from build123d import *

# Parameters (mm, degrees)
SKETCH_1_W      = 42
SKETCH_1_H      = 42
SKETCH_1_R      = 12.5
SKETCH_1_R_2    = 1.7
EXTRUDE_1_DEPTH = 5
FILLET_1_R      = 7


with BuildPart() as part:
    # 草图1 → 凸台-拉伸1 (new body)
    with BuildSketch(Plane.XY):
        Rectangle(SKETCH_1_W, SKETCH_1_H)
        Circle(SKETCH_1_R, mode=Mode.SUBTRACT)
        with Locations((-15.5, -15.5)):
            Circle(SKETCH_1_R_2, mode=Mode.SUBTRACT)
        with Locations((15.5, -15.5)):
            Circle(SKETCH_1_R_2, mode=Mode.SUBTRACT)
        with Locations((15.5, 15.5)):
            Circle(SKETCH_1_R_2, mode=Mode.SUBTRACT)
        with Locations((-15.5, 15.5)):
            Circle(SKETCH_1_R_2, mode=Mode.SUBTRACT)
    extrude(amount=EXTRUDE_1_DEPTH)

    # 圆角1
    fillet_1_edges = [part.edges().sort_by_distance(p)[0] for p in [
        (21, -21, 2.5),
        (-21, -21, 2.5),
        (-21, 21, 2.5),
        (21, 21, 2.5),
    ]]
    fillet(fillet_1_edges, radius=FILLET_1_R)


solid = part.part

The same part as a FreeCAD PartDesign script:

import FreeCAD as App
import Part
import Sketcher


def edges_at(feature, points):
    """Names of the edges that pass closest to the given points."""
    edges = feature.Shape.Edges
    near = lambda p: min(range(len(edges)), key=lambda i: edges[i].distToShape(Part.Vertex(*p))[0])
    return sorted({f"Edge{near(p) + 1}" for p in points})

doc = App.newDocument("Part")
params = doc.addObject("Spreadsheet::Sheet", "Params")
for row, (alias, value) in enumerate([
    ("sketch1_diameter", "25 mm"),
    ("sketch1_diameter2", "3.4 mm"),
    ("sketch1_width", "42 mm"),
    ("pad1_length", "5 mm"),
    ("fillet_radius", "7 mm"),
], start=1):
    params.set(f"A{row}", alias)
    params.set(f"B{row}", "=" + value)
    params.setAlias(f"B{row}", alias)

body = doc.addObject("PartDesign::Body", "Body")

sketch1 = body.newObject("Sketcher::SketchObject", "Sketch")
sketch1.AttachmentSupport = (doc.getObject("XY_Plane"), [""])
sketch1.MapMode = "FlatFace"
sketch1.addGeometry(Part.LineSegment(App.Vector(-21, 21, 0), App.Vector(-21, -21, 0)), False)
sketch1.addGeometry(Part.LineSegment(App.Vector(-21, -21, 0), App.Vector(21, -21, 0)), False)
sketch1.addGeometry(Part.LineSegment(App.Vector(21, -21, 0), App.Vector(21, 21, 0)), False)
sketch1.addGeometry(Part.LineSegment(App.Vector(21, 21, 0), App.Vector(-21, 21, 0)), False)
sketch1.addGeometry(Part.Circle(App.Vector(-15.5, -15.5, 0), App.Vector(0, 0, 1), 1.7), False)
sketch1.addGeometry(Part.Circle(App.Vector(15.5, -15.5, 0), App.Vector(0, 0, 1), 1.7), False)
sketch1.addGeometry(Part.Circle(App.Vector(-15.5, 15.5, 0), App.Vector(0, 0, 1), 1.7), False)
sketch1.addGeometry(Part.Circle(App.Vector(0, 0, 0), App.Vector(0, 0, 1), 12.5), False)
sketch1.addGeometry(Part.Circle(App.Vector(15.5, 15.5, 0), App.Vector(0, 0, 1), 1.7), False)
sketch1.addConstraint(Sketcher.Constraint("Coincident", 0, 2, 1, 1))
sketch1.addConstraint(Sketcher.Constraint("Coincident", 1, 2, 2, 1))
sketch1.addConstraint(Sketcher.Constraint("Coincident", 2, 2, 3, 1))
sketch1.addConstraint(Sketcher.Constraint("Coincident", 3, 2, 0, 1))
sketch1.addConstraint(Sketcher.Constraint("Vertical", 0))
sketch1.addConstraint(Sketcher.Constraint("Horizontal", 1))
sketch1.addConstraint(Sketcher.Constraint("Vertical", 2))
sketch1.addConstraint(Sketcher.Constraint("Horizontal", 3))
sketch1.addConstraint(Sketcher.Constraint("Coincident", 7, 3, -1, 1))
sketch1.addConstraint(Sketcher.Constraint("Equal", 4, 5))
sketch1.addConstraint(Sketcher.Constraint("Equal", 5, 6))
sketch1.addConstraint(Sketcher.Constraint("Equal", 6, 8))
sketch1.addConstraint(Sketcher.Constraint("Symmetric", 5, 3, 6, 3, -1, 1))
sketch1.addConstraint(Sketcher.Constraint("Symmetric", 4, 3, 8, 3, -1, 1))
sketch1.addConstraint(Sketcher.Constraint("Symmetric", 0, 2, 2, 2, -1, 1))
sketch1.addConstraint(Sketcher.Constraint("Symmetric", 4, 3, 5, 3, -2))
sketch1.addConstraint(Sketcher.Constraint("Equal", 3, 0))
sketch1.addConstraint(Sketcher.Constraint("Diameter", 7, 25.0))
sketch1.addConstraint(Sketcher.Constraint("Diameter", 4, 3.4))
sketch1.addConstraint(Sketcher.Constraint("DistanceX", 1, 1, 1, 2, 42.0))
sketch1.addConstraint(Sketcher.Constraint("DistanceX", 4, 3, 5, 3, 31.0))
sketch1.addConstraint(Sketcher.Constraint("DistanceY", 4, 3, 6, 3, 31.0))
sketch1.setExpression("Constraints[17]", "Params.sketch1_diameter")
sketch1.setExpression("Constraints[18]", "Params.sketch1_diameter2")
sketch1.setExpression("Constraints[19]", "Params.sketch1_width")
pad1 = body.newObject("PartDesign::Pad", "Pad")
pad1.Profile = sketch1
pad1.setExpression("Length", "Params.pad1_length")
doc.recompute()

fillet = body.newObject("PartDesign::Fillet", "Fillet")
fillet.Base = (pad1, edges_at(pad1, [
    (21, -21, 2.5),
    (-21, -21, 2.5),
    (-21, 21, 2.5),
    (21, 21, 2.5),
]))
fillet.setExpression("Radius", "Params.fillet_radius")

doc.recompute()
